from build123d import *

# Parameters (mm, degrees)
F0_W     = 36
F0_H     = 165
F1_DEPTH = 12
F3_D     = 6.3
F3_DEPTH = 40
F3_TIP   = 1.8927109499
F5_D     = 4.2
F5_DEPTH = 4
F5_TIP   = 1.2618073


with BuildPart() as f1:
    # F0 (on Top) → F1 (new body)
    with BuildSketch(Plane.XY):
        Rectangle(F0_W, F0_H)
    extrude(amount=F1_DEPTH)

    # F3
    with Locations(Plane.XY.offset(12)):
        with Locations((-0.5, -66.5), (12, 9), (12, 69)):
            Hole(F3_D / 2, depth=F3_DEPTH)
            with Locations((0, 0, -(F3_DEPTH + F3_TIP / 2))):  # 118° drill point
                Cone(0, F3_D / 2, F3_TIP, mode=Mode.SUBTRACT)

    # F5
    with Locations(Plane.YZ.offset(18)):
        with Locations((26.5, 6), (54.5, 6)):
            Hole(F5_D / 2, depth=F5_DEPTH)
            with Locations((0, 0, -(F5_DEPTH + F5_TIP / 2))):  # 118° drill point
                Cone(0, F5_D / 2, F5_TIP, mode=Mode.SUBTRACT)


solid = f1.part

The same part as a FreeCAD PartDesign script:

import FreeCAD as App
import Part
import Sketcher
Q = App.Units.Quantity


def add_polygon(sketch, points):
    """Adds a closed chain of lines whose ends are joined by coincident constraints."""
    first, n = sketch.GeometryCount, len(points)
    for a, b in zip(points, points[1:] + points[:1]):
        sketch.addGeometry(Part.LineSegment(App.Vector(*a, 0), App.Vector(*b, 0)), False)
    for i in range(n):
        sketch.addConstraint(Sketcher.Constraint("Coincident", first + i, 2, first + (i + 1) % n, 1))

doc = App.newDocument("Part")
body = doc.addObject("PartDesign::Body", "Body")

# Sketch on XY plane
sketch1 = body.newObject("Sketcher::SketchObject", "Sketch")
sketch1.AttachmentSupport = (doc.getObject("XY_Plane"), [""])
sketch1.MapMode = "FlatFace"
add_polygon(sketch1, [(-18, 82.5), (-18, -82.5), (18, -82.5), (18, 82.5)])  # lines 0-3
sketch1.addConstraint([
    Sketcher.Constraint("Vertical", 0),
    Sketcher.Constraint("Horizontal", 1),
    Sketcher.Constraint("Vertical", 2),
    Sketcher.Constraint("Horizontal", 3),
    Sketcher.Constraint("Symmetric", 0, 2, 2, 2, -1, 1),
    Sketcher.Constraint("DistanceX", 1, 1, 1, 2, Q("36 mm")),
    Sketcher.Constraint("DistanceY", 0, 2, 0, 1, Q("165 mm")),
])
pad1 = body.newObject("PartDesign::Pad", "Pad")
pad1.Profile = sketch1
pad1.Length = 12

# Sketch on XY plane
sketch2 = body.newObject("Sketcher::SketchObject", "Sketch001")
sketch2.AttachmentSupport = (doc.getObject("XY_Plane"), [""])
sketch2.MapMode = "FlatFace"
sketch2.AttachmentOffset = App.Placement(App.Vector(0, 0, 12), App.Rotation())
sketch2.addGeometry([
    Part.Circle(App.Vector(-0.5, -66.5, 0), App.Vector(0, 0, 1), 3.15),
    Part.Circle(App.Vector(12, 9, 0), App.Vector(0, 0, 1), 3.15),
    Part.Circle(App.Vector(12, 69, 0), App.Vector(0, 0, 1), 3.15),
], False)
sketch2.addConstraint([
    Sketcher.Constraint("Equal", 0, 1),
    Sketcher.Constraint("Equal", 1, 2),
    Sketcher.Constraint("Vertical", 1, 3, 2, 3),
    Sketcher.Constraint("Diameter", 0, Q("6.3 mm")),
    Sketcher.Constraint("DistanceX", -1, 1, 1, 3, Q("12 mm")),
    Sketcher.Constraint("DistanceY", -1, 1, 1, 3, Q("9 mm")),
    Sketcher.Constraint("DistanceY", -1, 1, 2, 3, Q("69 mm")),
    Sketcher.Constraint("DistanceX", 0, 3, -1, 1, Q("0.5 mm")),
    Sketcher.Constraint("DistanceY", 0, 3, -1, 1, Q("66.5 mm")),
])
doc.recompute()
hole = body.newObject("PartDesign::Hole", "Hole")
hole.Profile = sketch2
hole.ThreadType = "None"
hole.Diameter = 6.3
hole.DepthType = "Dimension"
hole.Depth = 40
hole.DrillPoint = "Angled"
hole.DrillPointAngle = 118

# Sketch on YZ plane
sketch3 = body.newObject("Sketcher::SketchObject", "Sketch002")
sketch3.AttachmentSupport = (doc.getObject("YZ_Plane"), [""])
sketch3.MapMode = "FlatFace"
sketch3.AttachmentOffset = App.Placement(App.Vector(0, 0, 18), App.Rotation())
sketch3.addGeometry([
    Part.Circle(App.Vector(26.5, 6, 0), App.Vector(0, 0, 1), 2.1),
    Part.Circle(App.Vector(54.5, 6, 0), App.Vector(0, 0, 1), 2.1),
], False)
sketch3.addConstraint([
    Sketcher.Constraint("Equal", 0, 1),
    Sketcher.Constraint("Horizontal", 0, 3, 1, 3),
    Sketcher.Constraint("Diameter", 0, Q("4.2 mm")),
    Sketcher.Constraint("DistanceY", -1, 1, 0, 3, Q("6 mm")),
    Sketcher.Constraint("DistanceX", 0, 3, 1, 3, Q("28 mm")),
    Sketcher.Constraint("DistanceX", -1, 1, 0, 3, Q("26.5 mm")),
])
doc.recompute()
hole2 = body.newObject("PartDesign::Hole", "Hole001")
hole2.Profile = sketch3
hole2.ThreadType = "None"
hole2.Diameter = 4.2
hole2.DepthType = "Dimension"
hole2.Depth = 4
hole2.DrillPoint = "Angled"
hole2.DrillPointAngle = 118

doc.recompute()
